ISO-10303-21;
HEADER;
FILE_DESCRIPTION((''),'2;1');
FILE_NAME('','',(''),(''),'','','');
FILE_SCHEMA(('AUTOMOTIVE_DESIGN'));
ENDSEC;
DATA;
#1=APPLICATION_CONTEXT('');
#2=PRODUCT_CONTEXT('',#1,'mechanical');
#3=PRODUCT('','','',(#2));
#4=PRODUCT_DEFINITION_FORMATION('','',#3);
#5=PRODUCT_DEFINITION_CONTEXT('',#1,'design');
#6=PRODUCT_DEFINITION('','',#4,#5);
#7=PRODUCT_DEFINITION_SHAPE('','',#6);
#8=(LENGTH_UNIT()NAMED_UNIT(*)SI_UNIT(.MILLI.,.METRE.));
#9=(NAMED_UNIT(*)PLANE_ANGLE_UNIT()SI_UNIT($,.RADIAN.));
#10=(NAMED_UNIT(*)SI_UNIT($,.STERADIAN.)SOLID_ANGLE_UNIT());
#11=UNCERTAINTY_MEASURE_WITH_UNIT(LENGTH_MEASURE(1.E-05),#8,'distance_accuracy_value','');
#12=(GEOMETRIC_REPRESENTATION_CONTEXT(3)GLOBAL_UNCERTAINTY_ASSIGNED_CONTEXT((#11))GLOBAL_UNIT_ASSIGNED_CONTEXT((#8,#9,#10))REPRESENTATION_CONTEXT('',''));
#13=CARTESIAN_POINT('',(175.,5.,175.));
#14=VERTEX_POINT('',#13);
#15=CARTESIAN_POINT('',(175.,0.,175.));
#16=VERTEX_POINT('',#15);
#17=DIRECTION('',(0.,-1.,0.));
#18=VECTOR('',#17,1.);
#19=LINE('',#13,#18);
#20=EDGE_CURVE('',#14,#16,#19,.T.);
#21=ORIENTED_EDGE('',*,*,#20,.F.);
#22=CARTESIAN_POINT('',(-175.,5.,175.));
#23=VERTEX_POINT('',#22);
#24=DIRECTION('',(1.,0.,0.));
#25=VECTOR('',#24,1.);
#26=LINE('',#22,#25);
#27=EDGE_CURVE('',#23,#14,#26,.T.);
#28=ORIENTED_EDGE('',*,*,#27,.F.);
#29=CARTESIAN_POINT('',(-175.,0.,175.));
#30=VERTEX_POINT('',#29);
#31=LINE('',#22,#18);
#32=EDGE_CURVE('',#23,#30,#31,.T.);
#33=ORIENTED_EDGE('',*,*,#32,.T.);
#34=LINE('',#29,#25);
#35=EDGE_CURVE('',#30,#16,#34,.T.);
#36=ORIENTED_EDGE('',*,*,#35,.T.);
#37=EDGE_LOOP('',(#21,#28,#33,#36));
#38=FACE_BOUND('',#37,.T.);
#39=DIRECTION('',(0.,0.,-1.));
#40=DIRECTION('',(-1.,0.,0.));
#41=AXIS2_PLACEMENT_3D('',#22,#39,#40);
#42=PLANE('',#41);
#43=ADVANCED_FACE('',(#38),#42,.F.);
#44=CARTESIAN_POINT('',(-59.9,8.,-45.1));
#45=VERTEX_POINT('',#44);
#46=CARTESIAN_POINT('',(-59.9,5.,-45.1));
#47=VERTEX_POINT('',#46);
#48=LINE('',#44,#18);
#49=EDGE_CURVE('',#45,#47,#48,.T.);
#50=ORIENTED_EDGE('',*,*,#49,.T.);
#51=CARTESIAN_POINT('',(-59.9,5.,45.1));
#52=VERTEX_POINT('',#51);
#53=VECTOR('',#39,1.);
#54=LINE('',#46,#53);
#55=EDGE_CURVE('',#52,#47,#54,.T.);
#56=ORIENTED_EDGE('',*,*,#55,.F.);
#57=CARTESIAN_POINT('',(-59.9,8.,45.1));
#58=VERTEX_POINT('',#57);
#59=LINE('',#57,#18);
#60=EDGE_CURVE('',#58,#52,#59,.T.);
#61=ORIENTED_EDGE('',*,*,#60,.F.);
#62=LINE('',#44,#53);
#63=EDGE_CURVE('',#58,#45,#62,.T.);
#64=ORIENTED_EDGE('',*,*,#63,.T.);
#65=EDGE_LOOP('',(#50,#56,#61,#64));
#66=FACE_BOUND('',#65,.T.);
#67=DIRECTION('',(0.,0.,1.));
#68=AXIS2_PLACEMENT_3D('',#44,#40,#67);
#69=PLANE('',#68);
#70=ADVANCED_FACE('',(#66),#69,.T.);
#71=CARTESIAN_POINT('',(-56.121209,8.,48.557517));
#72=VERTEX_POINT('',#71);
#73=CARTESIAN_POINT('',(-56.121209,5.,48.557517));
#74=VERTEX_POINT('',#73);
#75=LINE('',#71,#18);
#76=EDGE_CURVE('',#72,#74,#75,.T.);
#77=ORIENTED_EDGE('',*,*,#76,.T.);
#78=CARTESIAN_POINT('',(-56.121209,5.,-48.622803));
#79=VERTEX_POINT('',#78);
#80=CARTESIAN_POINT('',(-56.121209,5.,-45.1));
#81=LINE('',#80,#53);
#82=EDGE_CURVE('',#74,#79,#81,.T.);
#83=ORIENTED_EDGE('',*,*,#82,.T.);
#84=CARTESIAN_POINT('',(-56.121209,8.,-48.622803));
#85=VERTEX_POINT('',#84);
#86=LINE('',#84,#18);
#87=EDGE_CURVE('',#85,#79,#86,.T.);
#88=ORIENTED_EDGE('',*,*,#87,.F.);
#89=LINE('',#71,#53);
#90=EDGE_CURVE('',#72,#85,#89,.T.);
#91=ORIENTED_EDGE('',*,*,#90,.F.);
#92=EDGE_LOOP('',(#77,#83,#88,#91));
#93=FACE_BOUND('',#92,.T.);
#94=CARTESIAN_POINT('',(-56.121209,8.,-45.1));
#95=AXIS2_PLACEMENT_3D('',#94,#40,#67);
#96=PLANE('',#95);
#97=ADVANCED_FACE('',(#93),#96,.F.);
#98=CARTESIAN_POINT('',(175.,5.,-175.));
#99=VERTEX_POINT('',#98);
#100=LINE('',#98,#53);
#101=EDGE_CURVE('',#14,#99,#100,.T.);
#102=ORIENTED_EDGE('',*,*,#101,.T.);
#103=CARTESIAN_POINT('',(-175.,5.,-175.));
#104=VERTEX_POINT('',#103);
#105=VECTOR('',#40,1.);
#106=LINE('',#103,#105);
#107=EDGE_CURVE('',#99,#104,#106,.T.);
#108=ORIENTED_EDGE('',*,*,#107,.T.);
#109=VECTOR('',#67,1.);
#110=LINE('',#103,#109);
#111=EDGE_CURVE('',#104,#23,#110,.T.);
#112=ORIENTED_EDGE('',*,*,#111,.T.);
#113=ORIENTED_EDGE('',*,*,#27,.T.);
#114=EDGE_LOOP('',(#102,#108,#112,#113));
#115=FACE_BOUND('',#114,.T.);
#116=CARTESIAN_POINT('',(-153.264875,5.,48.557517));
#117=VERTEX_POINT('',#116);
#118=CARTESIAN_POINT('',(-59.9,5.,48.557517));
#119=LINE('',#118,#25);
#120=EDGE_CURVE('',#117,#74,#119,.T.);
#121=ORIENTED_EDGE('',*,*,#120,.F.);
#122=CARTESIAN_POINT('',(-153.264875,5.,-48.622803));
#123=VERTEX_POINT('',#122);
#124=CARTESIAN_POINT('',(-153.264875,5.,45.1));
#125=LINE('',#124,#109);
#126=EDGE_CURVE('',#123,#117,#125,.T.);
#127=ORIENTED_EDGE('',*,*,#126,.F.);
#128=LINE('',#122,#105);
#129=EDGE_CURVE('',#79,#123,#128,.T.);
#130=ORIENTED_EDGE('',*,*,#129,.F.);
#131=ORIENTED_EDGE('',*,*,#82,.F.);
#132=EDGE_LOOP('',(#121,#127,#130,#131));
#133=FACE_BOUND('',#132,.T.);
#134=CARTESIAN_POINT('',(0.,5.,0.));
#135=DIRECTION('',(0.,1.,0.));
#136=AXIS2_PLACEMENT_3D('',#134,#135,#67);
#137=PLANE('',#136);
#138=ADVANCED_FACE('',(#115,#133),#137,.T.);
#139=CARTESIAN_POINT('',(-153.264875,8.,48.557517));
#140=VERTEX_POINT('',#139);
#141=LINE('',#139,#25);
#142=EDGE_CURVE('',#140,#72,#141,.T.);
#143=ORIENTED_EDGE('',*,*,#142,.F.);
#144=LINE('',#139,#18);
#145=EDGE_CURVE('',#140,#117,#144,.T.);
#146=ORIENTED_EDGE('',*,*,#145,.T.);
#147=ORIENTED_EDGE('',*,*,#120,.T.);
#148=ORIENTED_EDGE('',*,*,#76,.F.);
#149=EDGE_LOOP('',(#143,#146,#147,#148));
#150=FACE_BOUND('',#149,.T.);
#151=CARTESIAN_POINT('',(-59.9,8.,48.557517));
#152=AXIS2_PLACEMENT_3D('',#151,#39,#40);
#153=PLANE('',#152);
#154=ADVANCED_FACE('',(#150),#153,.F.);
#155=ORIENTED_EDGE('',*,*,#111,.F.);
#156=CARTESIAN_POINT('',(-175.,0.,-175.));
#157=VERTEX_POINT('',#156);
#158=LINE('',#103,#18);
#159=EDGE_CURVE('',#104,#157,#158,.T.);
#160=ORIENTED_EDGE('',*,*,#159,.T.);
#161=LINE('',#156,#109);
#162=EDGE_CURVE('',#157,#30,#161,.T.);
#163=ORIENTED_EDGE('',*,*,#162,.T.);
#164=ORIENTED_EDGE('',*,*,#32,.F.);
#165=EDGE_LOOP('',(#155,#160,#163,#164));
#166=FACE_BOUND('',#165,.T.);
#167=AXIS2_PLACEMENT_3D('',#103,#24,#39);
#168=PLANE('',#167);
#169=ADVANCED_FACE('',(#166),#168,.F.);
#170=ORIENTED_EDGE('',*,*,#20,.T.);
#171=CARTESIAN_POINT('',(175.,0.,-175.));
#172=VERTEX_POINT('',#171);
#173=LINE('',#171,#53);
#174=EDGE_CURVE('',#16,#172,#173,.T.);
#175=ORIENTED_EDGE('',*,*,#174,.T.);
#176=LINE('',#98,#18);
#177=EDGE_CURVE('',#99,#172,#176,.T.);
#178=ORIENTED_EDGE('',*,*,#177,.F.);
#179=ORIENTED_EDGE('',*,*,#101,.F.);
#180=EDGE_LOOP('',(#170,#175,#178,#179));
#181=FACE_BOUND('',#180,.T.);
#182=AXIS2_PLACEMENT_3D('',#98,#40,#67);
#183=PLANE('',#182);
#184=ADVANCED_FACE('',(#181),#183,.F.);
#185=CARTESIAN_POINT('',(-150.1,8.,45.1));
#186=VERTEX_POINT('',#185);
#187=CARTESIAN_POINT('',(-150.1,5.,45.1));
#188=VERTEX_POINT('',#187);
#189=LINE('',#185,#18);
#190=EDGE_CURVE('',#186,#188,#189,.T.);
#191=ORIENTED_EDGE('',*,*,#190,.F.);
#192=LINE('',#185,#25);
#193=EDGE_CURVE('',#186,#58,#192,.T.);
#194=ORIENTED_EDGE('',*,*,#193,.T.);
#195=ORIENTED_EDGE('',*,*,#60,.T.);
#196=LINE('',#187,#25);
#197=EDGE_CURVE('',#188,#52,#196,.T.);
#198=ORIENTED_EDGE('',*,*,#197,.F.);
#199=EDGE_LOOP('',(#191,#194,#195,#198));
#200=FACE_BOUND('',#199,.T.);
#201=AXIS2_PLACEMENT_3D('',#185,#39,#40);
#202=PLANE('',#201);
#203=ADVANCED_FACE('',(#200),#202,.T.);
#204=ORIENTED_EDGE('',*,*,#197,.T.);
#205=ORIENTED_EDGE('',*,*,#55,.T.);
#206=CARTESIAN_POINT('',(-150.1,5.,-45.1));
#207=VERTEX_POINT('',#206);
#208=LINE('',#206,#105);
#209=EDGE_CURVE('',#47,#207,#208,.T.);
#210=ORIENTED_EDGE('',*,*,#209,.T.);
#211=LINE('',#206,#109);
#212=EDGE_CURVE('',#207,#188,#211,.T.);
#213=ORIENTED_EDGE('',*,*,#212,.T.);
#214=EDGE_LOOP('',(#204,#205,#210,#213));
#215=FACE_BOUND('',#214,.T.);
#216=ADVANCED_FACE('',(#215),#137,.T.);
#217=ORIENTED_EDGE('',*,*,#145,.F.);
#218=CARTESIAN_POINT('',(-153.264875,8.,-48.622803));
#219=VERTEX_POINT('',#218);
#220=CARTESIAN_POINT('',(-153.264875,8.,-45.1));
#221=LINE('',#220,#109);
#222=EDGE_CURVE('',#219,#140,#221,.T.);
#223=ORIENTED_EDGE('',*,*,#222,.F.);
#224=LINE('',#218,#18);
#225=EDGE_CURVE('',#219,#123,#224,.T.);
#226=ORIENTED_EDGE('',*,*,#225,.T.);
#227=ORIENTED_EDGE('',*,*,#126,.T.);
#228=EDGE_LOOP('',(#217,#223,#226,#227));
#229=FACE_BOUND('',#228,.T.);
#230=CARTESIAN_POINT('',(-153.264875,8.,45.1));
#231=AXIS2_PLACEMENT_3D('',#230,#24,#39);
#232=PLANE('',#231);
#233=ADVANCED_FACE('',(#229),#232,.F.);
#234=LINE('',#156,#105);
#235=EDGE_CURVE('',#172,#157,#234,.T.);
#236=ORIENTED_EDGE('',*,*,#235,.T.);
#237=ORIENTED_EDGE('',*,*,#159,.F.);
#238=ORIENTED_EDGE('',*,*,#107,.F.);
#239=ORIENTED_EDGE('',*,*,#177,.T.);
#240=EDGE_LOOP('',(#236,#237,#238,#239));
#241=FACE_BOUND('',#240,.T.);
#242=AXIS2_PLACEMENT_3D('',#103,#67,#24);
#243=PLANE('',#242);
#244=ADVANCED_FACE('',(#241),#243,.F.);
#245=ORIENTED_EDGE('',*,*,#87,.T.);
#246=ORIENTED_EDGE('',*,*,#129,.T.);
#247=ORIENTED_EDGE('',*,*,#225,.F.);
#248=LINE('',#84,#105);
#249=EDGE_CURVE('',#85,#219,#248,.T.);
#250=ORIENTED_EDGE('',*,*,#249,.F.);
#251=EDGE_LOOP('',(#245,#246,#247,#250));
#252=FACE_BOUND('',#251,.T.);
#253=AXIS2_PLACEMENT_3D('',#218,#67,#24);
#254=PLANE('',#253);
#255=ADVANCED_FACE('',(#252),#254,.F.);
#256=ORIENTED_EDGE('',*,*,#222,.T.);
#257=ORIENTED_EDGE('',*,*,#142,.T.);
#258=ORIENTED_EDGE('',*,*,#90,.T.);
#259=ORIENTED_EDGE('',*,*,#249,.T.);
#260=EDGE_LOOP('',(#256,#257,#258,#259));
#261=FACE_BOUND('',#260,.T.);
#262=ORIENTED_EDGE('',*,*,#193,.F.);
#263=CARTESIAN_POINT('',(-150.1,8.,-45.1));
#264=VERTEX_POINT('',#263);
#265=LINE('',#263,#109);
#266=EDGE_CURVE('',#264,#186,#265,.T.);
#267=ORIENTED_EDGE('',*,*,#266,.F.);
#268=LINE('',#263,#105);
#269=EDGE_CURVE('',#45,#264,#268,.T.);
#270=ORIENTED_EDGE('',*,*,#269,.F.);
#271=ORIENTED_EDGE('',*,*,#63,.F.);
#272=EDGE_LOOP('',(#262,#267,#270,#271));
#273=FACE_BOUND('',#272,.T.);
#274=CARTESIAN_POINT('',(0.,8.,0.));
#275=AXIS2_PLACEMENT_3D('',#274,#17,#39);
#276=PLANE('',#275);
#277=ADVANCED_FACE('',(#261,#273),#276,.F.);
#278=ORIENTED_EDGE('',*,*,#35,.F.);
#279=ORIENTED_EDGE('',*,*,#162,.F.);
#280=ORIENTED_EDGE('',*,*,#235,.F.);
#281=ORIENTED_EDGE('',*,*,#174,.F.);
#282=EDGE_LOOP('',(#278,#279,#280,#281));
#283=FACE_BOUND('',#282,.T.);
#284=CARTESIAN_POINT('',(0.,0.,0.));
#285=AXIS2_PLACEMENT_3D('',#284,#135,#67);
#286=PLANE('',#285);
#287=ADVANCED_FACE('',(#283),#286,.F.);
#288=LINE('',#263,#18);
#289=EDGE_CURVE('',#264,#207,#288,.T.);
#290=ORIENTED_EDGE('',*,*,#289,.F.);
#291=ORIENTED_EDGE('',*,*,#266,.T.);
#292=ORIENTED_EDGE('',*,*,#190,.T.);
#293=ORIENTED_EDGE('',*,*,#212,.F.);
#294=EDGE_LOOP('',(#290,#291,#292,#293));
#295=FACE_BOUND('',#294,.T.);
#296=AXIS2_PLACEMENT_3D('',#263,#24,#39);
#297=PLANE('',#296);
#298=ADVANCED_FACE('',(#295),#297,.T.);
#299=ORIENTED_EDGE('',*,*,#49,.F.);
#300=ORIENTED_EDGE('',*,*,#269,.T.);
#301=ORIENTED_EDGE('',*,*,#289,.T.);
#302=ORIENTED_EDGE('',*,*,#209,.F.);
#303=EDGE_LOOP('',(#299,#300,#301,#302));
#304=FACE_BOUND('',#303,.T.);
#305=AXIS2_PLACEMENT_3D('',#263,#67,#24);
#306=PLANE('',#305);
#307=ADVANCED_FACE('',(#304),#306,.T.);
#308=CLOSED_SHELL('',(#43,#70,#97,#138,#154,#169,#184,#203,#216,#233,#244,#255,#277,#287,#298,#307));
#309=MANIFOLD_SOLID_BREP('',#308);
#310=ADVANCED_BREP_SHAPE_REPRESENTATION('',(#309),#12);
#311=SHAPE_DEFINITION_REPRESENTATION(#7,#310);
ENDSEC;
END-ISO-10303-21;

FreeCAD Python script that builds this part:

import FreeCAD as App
import Part
import Sketcher
Q = App.Units.Quantity


def add_polygon(sketch, points):
    """Adds a closed chain of lines whose ends are joined by coincident constraints."""
    first, n = sketch.GeometryCount, len(points)
    for a, b in zip(points, points[1:] + points[:1]):
        sketch.addGeometry(Part.LineSegment(App.Vector(*a, 0), App.Vector(*b, 0)), False)
    for i in range(n):
        sketch.addConstraint(Sketcher.Constraint("Coincident", first + i, 2, first + (i + 1) % n, 1))

doc = App.newDocument("Part")
params = doc.addObject("Spreadsheet::Sheet", "Params")
for row, (alias, value) in enumerate([
    ("sketch1_width", "350 mm"),
    ("pad1_length", "5 mm"),
    ("sketch2_width", "90.2 mm"),
    ("pad2_length", "3 mm"),
], start=1):
    params.set(f"A{row}", alias)
    params.set(f"B{row}", "=" + value)
    params.setAlias(f"B{row}", alias)

body = doc.addObject("PartDesign::Body", "Body")

# Sketch on XZ plane
sketch1 = doc.addObject("Sketcher::SketchObject", "Sketch")
body.addObject(sketch1)
sketch1.AttachmentSupport = (doc.XZ_Plane, [""])
sketch1.MapMode = "FlatFace"
add_polygon(sketch1, [(-175, -175), (-175, 175), (175, 175), (175, -175)])  # lines 0-3
sketch1.addConstraint([
    Sketcher.Constraint("Vertical", 0),
    Sketcher.Constraint("Horizontal", 1),
    Sketcher.Constraint("Vertical", 2),
    Sketcher.Constraint("Horizontal", 3),
    Sketcher.Constraint("Symmetric", 0, 2, 2, 2, -1, 1),
    Sketcher.Constraint("Equal", 3, 0),
    Sketcher.Constraint("DistanceX", 1, 1, 1, 2, Q("350 mm")),
])
sketch1.setExpression("Constraints[10]", "Params.sketch1_width")
pad1 = doc.addObject("PartDesign::Pad", "Pad")
body.addObject(pad1)
pad1.Profile = sketch1
pad1.setExpression("Length", "Params.pad1_length")
pad1.Reversed = True

# Sketch on XZ plane
sketch2 = doc.addObject("Sketcher::SketchObject", "Sketch001")
body.addObject(sketch2)
sketch2.AttachmentSupport = (doc.XZ_Plane, [""])
sketch2.MapMode = "FlatFace"
sketch2.AttachmentOffset = App.Placement(App.Vector(0, 0, -5), App.Rotation())
add_polygon(sketch2, [(-56, -49), (-153, -49), (-153, 49), (-56, 49)])  # lines 0-3
add_polygon(sketch2, [(-60, 45), (-150, 45), (-150, -45), (-60, -45)])  # lines 4-7
sketch2.addConstraint([
    Sketcher.Constraint("Horizontal", 0),
    Sketcher.Constraint("Vertical", 1),
    Sketcher.Constraint("Horizontal", 2),
    Sketcher.Constraint("Vertical", 3),
    Sketcher.Constraint("Horizontal", 4),
    Sketcher.Constraint("Vertical", 5),
    Sketcher.Constraint("Horizontal", 6),
    Sketcher.Constraint("Vertical", 7),
    Sketcher.Constraint("Equal", 6, 5),
    Sketcher.Constraint("DistanceX", 4, 2, 4, 1, Q("90.2 mm")),
    Sketcher.Constraint("DistanceX", 4, 2, -1, 1, Q("150.1 mm")),
    Sketcher.Constraint("DistanceY", -1, 1, 4, 2, Q("45.1 mm")),
    Sketcher.Constraint("DistanceY", 1, 1, 1, 2, Q("97.180321 mm")),
    Sketcher.Constraint("DistanceX", 0, 2, 0, 1, Q("97.143667 mm")),
    Sketcher.Constraint("DistanceX", 2, 2, -1, 1, Q("56.121209 mm")),
    Sketcher.Constraint("DistanceY", 0, 2, -1, 1, Q("48.622803 mm")),
])
sketch2.setExpression("Constraints[17]", "Params.sketch2_width")
pad2 = doc.addObject("PartDesign::Pad", "Pad001")
body.addObject(pad2)
pad2.Profile = sketch2
pad2.setExpression("Length", "Params.pad2_length")
pad2.Reversed = True

doc.recompute()
